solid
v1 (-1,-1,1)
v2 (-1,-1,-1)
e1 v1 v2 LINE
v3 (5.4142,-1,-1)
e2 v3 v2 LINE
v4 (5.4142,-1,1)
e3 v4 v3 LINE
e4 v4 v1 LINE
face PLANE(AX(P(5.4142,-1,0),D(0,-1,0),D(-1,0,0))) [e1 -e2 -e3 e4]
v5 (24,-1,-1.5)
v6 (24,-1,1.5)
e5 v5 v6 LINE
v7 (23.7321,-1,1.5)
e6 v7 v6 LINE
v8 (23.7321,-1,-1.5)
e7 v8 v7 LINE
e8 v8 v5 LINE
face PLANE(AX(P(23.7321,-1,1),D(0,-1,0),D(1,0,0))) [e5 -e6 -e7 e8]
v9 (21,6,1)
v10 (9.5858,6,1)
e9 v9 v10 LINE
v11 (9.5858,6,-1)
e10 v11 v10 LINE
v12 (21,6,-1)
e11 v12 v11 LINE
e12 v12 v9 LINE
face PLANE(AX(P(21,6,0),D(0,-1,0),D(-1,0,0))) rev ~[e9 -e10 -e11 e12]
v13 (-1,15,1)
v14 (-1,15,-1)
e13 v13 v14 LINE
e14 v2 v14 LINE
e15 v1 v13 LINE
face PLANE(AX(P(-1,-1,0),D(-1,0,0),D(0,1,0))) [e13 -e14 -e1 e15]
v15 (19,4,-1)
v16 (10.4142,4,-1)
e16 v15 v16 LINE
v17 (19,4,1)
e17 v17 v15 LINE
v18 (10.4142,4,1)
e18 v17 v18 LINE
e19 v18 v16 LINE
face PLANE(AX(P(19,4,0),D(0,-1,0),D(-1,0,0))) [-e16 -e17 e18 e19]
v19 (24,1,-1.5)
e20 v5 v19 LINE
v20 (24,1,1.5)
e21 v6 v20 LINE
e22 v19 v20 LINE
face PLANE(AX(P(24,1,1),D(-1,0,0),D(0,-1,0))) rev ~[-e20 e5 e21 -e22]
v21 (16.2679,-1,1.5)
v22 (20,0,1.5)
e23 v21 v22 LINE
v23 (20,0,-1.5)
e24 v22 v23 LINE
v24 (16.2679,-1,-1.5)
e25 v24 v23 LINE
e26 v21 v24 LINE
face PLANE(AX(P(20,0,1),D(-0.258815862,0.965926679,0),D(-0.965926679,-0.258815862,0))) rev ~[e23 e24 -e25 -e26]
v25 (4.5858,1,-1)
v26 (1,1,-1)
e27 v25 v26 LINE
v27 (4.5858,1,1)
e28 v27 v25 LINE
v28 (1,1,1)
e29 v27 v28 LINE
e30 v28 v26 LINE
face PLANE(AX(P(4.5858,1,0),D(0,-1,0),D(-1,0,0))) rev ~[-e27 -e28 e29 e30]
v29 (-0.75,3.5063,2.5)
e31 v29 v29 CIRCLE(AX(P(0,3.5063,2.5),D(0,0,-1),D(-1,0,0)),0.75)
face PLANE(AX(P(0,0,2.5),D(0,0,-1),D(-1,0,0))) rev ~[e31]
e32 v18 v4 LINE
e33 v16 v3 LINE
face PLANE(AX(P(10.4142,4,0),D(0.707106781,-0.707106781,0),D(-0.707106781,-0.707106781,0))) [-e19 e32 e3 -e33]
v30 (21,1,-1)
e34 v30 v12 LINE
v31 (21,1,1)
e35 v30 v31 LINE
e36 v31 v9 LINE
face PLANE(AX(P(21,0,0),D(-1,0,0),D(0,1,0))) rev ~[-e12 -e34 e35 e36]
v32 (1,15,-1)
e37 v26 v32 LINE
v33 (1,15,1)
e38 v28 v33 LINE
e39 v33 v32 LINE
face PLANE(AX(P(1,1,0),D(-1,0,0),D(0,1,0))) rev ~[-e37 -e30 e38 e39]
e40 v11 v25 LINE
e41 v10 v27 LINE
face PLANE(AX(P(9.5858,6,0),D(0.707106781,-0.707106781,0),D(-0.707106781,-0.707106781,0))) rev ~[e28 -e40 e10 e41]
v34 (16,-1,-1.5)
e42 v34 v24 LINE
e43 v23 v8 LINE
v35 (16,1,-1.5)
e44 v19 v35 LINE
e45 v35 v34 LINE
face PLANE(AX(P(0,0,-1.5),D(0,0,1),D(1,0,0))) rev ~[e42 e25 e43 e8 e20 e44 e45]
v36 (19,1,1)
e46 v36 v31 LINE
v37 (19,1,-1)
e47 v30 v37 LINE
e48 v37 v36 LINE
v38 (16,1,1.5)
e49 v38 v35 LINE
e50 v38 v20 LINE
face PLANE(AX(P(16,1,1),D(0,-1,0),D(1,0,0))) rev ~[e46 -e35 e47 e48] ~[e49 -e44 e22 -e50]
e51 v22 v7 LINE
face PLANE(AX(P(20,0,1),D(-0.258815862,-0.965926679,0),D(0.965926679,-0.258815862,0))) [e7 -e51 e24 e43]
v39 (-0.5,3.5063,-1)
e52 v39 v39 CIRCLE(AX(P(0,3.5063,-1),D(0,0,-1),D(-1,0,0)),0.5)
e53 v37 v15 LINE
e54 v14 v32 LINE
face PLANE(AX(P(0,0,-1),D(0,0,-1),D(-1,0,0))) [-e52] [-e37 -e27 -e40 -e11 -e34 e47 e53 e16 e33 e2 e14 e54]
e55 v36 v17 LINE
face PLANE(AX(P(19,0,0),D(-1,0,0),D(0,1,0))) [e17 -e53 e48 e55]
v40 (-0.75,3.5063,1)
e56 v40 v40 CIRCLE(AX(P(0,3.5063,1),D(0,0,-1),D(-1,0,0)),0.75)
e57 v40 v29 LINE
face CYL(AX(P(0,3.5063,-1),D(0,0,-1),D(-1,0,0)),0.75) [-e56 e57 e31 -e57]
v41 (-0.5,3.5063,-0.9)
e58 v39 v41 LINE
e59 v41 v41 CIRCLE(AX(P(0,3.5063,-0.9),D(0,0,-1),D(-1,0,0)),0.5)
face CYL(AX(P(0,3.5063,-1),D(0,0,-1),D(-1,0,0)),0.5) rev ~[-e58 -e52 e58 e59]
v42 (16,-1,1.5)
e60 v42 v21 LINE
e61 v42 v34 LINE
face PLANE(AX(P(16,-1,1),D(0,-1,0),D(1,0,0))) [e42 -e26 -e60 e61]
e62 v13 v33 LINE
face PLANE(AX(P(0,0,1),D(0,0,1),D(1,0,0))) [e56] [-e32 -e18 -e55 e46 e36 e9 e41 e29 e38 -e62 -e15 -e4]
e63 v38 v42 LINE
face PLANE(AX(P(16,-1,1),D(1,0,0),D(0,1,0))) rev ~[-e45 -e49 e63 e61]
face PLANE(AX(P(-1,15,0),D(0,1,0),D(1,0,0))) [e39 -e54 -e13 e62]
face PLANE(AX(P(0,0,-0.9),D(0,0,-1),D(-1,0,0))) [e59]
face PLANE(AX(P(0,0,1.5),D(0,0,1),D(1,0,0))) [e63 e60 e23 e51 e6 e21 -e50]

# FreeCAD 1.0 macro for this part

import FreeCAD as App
import Part
import Sketcher

V = App.Vector
Q = App.Units.Quantity


def add_polygon(sketch, points):
    """Adds a closed chain of lines whose ends are joined by coincident constraints."""
    first, n = sketch.GeometryCount, len(points)
    for a, b in zip(points, points[1:] + points[:1]):
        sketch.addGeometry(Part.LineSegment(App.Vector(*a, 0), App.Vector(*b, 0)), False)
    for i in range(n):
        sketch.addConstraint(Sketcher.Constraint("Coincident", first + i, 2, first + (i + 1) % n, 1))

doc = App.newDocument("Part")
params = doc.addObject("Spreadsheet::Sheet", "Params")
for row, (alias, value) in enumerate([
    ("pad1_length", "2 mm"),
    ("sketch2_diameter", "1.5 mm"),
    ("pad2_length", "3.5 mm"),
    ("sketch3_width", "8 mm"),
    ("sketch3_height", "2 mm"),
    ("pad3_length", "2 mm"),
    ("sketch4_width", "8 mm"),
    ("sketch4_height", "2 mm"),
    ("pad4_length", "3 mm"),
    ("sketch5_diameter", "1 mm"),
    ("pocket1_length", "0.1 mm"),
], start=1):
    params.set(f"A{row}", alias)
    params.set(f"B{row}", "=" + value)
    params.setAlias(f"B{row}", alias)

body = doc.addObject("PartDesign::Body", "Body")

# Sketch on XY plane
sketch1 = body.newObject("Sketcher::SketchObject", "Sketch")
sketch1.AttachmentSupport = (doc.getObject("XY_Plane"), [""])
sketch1.MapMode = "FlatFace"
add_polygon(sketch1, [(19, 0), (21, 0), (21, 6), (9.5858, 6), (4.5858, 1), (1, 1), (1, 15), (-1, 15), (-1, -1), (5.4142, -1), (10.4142, 4), (19, 4)])  # lines 0-11
sketch1.addConstraint(Sketcher.Constraint("Horizontal", 0))
sketch1.addConstraint(Sketcher.Constraint("Vertical", 1))
sketch1.addConstraint(Sketcher.Constraint("Horizontal", 2))
sketch1.addConstraint(Sketcher.Constraint("Horizontal", 4))
sketch1.addConstraint(Sketcher.Constraint("Vertical", 5))
sketch1.addConstraint(Sketcher.Constraint("Horizontal", 6))
sketch1.addConstraint(Sketcher.Constraint("Vertical", 7))
sketch1.addConstraint(Sketcher.Constraint("Horizontal", 8))
sketch1.addConstraint(Sketcher.Constraint("Horizontal", 10))
sketch1.addConstraint(Sketcher.Constraint("Vertical", 11))
sketch1.addConstraint(Sketcher.Constraint("Symmetric", 4, 2, 7, 2, -1, 1))
sketch1.addConstraint(Sketcher.Constraint("PointOnObject", 0, 2, -1))
sketch1.addConstraint(Sketcher.Constraint("Parallel", 3, 9))
sketch1.addConstraint(Sketcher.Constraint("Equal", 0, 6))
sketch1.addConstraint(Sketcher.Constraint("Equal", 3, 9))
sketch1.addConstraint(Sketcher.Constraint("Angle", 9, Q("45 deg")))
sketch1.addConstraint(Sketcher.Constraint("DistanceY", -1, 1, 3, 2, Q("1 mm")))
sketch1.addConstraint(Sketcher.Constraint("DistanceX", -1, 1, 4, 2, Q("1 mm")))
sketch1.addConstraint(Sketcher.Constraint("DistanceY", -1, 1, 5, 2, Q("15 mm")))
sketch1.addConstraint(Sketcher.Constraint("DistanceX", 3, 2, 2, 2, Q("5 mm")))
sketch1.addConstraint(Sketcher.Constraint("DistanceX", 4, 2, 0, 2, Q("20 mm")))
sketch1.addConstraint(Sketcher.Constraint("DistanceX", 2, 2, 2, 1, Q("11.4142 mm")))
sketch1.addConstraint(Sketcher.Constraint("DistanceX", 8, 1, 8, 2, Q("6.4142 mm")))
pad1 = body.newObject("PartDesign::Pad", "Pad")
pad1.Profile = sketch1
pad1.setExpression("Length", "Params.pad1_length")
pad1.Midplane = True

# Sketch on XY plane
sketch2 = body.newObject("Sketcher::SketchObject", "Sketch001")
sketch2.AttachmentSupport = (doc.getObject("XY_Plane"), [""])
sketch2.MapMode = "FlatFace"
sketch2.AttachmentOffset = App.Placement(V(0, 0, -1), App.Rotation())
sketch2.addGeometry(Part.Circle(V(0, 3.5063, 0), V(0, 0, 1), 0.75), False)
sketch2.addConstraint(Sketcher.Constraint("PointOnObject", 0, 3, -2))
sketch2.addConstraint(Sketcher.Constraint("Diameter", 0, Q("1.5 mm")))
sketch2.addConstraint(Sketcher.Constraint("DistanceY", -1, 1, 0, 3, Q("3.5063 mm")))
sketch2.setExpression("Constraints[1]", "Params.sketch2_diameter")
pad2 = body.newObject("PartDesign::Pad", "Pad001")
pad2.Profile = sketch2
pad2.setExpression("Length", "Params.pad2_length")

# Sketch on XY plane
sketch3 = body.newObject("Sketcher::SketchObject", "Sketch002")
sketch3.AttachmentSupport = (doc.getObject("XY_Plane"), [""])
sketch3.MapMode = "FlatFace"
sketch3.AttachmentOffset = App.Placement(V(0, 0, 1), App.Rotation())
add_polygon(sketch3, [(16.2679, -1), (20, 0), (23.7321, -1), (24, -1), (24, 1), (16, 1), (16, -1)])  # lines 0-6
sketch3.addConstraint(Sketcher.Constraint("Horizontal", 2))
sketch3.addConstraint(Sketcher.Constraint("Vertical", 3))
sketch3.addConstraint(Sketcher.Constraint("Horizontal", 4))
sketch3.addConstraint(Sketcher.Constraint("Vertical", 5))
sketch3.addConstraint(Sketcher.Constraint("Horizontal", 6))
sketch3.addConstraint(Sketcher.Constraint("PointOnObject", 0, 2, -1))
sketch3.addConstraint(Sketcher.Constraint("Horizontal", 2, 2, 5, 2))
sketch3.addConstraint(Sketcher.Constraint("Equal", 2, 6))
sketch3.addConstraint(Sketcher.Constraint("Equal", 0, 1))
sketch3.addConstraint(Sketcher.Constraint("DistanceX", 4, 2, 4, 1, Q("8 mm")))
sketch3.addConstraint(Sketcher.Constraint("DistanceY", 3, 1, 3, 2, Q("2 mm")))
sketch3.addConstraint(Sketcher.Constraint("Angle", 0, Q("14.9998 deg")))
sketch3.addConstraint(Sketcher.Constraint("DistanceX", -1, 1, 0, 2, Q("20 mm")))
sketch3.addConstraint(Sketcher.Constraint("DistanceY", 1, 2, -1, 1, Q("1 mm")))
sketch3.setExpression("Constraints[16]", "Params.sketch3_width")
sketch3.setExpression("Constraints[17]", "Params.sketch3_height")
pad3 = body.newObject("PartDesign::Pad", "Pad002")
pad3.Profile = sketch3
pad3.setExpression("Length", "Params.pad3_length")
pad3.Reversed = True

# Sketch on XY plane
sketch4 = body.newObject("Sketcher::SketchObject", "Sketch003")
sketch4.AttachmentSupport = (doc.getObject("XY_Plane"), [""])
sketch4.MapMode = "FlatFace"
add_polygon(sketch4, [(24, 1), (16, 1), (16, -1), (16.2679, -1), (20, 0), (23.7321, -1), (24, -1)])  # lines 0-6
sketch4.addConstraint(Sketcher.Constraint("Horizontal", 0))
sketch4.addConstraint(Sketcher.Constraint("Vertical", 1))
sketch4.addConstraint(Sketcher.Constraint("Horizontal", 2))
sketch4.addConstraint(Sketcher.Constraint("Horizontal", 5))
sketch4.addConstraint(Sketcher.Constraint("Vertical", 6))
sketch4.addConstraint(Sketcher.Constraint("PointOnObject", 3, 2, -1))
sketch4.addConstraint(Sketcher.Constraint("Horizontal", 2, 2, 4, 2))
sketch4.addConstraint(Sketcher.Constraint("Equal", 2, 5))
sketch4.addConstraint(Sketcher.Constraint("Equal", 3, 4))
sketch4.addConstraint(Sketcher.Constraint("DistanceX", 0, 2, 0, 1, Q("8 mm")))
sketch4.addConstraint(Sketcher.Constraint("DistanceY", 1, 2, 1, 1, Q("2 mm")))
sketch4.addConstraint(Sketcher.Constraint("Angle", 3, Q("14.9998 deg")))
sketch4.addConstraint(Sketcher.Constraint("DistanceX", -1, 1, 0, 2, Q("16 mm")))
sketch4.addConstraint(Sketcher.Constraint("DistanceY", -1, 1, 0, 2, Q("1 mm")))
sketch4.setExpression("Constraints[16]", "Params.sketch4_width")
sketch4.setExpression("Constraints[17]", "Params.sketch4_height")
pad4 = body.newObject("PartDesign::Pad", "Pad003")
pad4.Profile = sketch4
pad4.setExpression("Length", "Params.pad4_length")
pad4.Midplane = True

# Sketch on XY plane
sketch5 = body.newObject("Sketcher::SketchObject", "Sketch004")
sketch5.AttachmentSupport = (doc.getObject("XY_Plane"), [""])
sketch5.MapMode = "FlatFace"
sketch5.AttachmentOffset = App.Placement(V(0, 0, -1), App.Rotation())
sketch5.addGeometry(Part.Circle(V(0, 3.5063, 0), V(0, 0, 1), 0.5), False)
sketch5.addConstraint(Sketcher.Constraint("PointOnObject", 0, 3, -2))
sketch5.addConstraint(Sketcher.Constraint("Diameter", 0, Q("1 mm")))
sketch5.addConstraint(Sketcher.Constraint("DistanceY", -1, 1, 0, 3, Q("3.5063 mm")))
sketch5.setExpression("Constraints[1]", "Params.sketch5_diameter")
pocket1 = body.newObject("PartDesign::Pocket", "Pocket")
pocket1.Profile = sketch5
pocket1.setExpression("Length", "Params.pocket1_length")
pocket1.Reversed = True

doc.recompute()
